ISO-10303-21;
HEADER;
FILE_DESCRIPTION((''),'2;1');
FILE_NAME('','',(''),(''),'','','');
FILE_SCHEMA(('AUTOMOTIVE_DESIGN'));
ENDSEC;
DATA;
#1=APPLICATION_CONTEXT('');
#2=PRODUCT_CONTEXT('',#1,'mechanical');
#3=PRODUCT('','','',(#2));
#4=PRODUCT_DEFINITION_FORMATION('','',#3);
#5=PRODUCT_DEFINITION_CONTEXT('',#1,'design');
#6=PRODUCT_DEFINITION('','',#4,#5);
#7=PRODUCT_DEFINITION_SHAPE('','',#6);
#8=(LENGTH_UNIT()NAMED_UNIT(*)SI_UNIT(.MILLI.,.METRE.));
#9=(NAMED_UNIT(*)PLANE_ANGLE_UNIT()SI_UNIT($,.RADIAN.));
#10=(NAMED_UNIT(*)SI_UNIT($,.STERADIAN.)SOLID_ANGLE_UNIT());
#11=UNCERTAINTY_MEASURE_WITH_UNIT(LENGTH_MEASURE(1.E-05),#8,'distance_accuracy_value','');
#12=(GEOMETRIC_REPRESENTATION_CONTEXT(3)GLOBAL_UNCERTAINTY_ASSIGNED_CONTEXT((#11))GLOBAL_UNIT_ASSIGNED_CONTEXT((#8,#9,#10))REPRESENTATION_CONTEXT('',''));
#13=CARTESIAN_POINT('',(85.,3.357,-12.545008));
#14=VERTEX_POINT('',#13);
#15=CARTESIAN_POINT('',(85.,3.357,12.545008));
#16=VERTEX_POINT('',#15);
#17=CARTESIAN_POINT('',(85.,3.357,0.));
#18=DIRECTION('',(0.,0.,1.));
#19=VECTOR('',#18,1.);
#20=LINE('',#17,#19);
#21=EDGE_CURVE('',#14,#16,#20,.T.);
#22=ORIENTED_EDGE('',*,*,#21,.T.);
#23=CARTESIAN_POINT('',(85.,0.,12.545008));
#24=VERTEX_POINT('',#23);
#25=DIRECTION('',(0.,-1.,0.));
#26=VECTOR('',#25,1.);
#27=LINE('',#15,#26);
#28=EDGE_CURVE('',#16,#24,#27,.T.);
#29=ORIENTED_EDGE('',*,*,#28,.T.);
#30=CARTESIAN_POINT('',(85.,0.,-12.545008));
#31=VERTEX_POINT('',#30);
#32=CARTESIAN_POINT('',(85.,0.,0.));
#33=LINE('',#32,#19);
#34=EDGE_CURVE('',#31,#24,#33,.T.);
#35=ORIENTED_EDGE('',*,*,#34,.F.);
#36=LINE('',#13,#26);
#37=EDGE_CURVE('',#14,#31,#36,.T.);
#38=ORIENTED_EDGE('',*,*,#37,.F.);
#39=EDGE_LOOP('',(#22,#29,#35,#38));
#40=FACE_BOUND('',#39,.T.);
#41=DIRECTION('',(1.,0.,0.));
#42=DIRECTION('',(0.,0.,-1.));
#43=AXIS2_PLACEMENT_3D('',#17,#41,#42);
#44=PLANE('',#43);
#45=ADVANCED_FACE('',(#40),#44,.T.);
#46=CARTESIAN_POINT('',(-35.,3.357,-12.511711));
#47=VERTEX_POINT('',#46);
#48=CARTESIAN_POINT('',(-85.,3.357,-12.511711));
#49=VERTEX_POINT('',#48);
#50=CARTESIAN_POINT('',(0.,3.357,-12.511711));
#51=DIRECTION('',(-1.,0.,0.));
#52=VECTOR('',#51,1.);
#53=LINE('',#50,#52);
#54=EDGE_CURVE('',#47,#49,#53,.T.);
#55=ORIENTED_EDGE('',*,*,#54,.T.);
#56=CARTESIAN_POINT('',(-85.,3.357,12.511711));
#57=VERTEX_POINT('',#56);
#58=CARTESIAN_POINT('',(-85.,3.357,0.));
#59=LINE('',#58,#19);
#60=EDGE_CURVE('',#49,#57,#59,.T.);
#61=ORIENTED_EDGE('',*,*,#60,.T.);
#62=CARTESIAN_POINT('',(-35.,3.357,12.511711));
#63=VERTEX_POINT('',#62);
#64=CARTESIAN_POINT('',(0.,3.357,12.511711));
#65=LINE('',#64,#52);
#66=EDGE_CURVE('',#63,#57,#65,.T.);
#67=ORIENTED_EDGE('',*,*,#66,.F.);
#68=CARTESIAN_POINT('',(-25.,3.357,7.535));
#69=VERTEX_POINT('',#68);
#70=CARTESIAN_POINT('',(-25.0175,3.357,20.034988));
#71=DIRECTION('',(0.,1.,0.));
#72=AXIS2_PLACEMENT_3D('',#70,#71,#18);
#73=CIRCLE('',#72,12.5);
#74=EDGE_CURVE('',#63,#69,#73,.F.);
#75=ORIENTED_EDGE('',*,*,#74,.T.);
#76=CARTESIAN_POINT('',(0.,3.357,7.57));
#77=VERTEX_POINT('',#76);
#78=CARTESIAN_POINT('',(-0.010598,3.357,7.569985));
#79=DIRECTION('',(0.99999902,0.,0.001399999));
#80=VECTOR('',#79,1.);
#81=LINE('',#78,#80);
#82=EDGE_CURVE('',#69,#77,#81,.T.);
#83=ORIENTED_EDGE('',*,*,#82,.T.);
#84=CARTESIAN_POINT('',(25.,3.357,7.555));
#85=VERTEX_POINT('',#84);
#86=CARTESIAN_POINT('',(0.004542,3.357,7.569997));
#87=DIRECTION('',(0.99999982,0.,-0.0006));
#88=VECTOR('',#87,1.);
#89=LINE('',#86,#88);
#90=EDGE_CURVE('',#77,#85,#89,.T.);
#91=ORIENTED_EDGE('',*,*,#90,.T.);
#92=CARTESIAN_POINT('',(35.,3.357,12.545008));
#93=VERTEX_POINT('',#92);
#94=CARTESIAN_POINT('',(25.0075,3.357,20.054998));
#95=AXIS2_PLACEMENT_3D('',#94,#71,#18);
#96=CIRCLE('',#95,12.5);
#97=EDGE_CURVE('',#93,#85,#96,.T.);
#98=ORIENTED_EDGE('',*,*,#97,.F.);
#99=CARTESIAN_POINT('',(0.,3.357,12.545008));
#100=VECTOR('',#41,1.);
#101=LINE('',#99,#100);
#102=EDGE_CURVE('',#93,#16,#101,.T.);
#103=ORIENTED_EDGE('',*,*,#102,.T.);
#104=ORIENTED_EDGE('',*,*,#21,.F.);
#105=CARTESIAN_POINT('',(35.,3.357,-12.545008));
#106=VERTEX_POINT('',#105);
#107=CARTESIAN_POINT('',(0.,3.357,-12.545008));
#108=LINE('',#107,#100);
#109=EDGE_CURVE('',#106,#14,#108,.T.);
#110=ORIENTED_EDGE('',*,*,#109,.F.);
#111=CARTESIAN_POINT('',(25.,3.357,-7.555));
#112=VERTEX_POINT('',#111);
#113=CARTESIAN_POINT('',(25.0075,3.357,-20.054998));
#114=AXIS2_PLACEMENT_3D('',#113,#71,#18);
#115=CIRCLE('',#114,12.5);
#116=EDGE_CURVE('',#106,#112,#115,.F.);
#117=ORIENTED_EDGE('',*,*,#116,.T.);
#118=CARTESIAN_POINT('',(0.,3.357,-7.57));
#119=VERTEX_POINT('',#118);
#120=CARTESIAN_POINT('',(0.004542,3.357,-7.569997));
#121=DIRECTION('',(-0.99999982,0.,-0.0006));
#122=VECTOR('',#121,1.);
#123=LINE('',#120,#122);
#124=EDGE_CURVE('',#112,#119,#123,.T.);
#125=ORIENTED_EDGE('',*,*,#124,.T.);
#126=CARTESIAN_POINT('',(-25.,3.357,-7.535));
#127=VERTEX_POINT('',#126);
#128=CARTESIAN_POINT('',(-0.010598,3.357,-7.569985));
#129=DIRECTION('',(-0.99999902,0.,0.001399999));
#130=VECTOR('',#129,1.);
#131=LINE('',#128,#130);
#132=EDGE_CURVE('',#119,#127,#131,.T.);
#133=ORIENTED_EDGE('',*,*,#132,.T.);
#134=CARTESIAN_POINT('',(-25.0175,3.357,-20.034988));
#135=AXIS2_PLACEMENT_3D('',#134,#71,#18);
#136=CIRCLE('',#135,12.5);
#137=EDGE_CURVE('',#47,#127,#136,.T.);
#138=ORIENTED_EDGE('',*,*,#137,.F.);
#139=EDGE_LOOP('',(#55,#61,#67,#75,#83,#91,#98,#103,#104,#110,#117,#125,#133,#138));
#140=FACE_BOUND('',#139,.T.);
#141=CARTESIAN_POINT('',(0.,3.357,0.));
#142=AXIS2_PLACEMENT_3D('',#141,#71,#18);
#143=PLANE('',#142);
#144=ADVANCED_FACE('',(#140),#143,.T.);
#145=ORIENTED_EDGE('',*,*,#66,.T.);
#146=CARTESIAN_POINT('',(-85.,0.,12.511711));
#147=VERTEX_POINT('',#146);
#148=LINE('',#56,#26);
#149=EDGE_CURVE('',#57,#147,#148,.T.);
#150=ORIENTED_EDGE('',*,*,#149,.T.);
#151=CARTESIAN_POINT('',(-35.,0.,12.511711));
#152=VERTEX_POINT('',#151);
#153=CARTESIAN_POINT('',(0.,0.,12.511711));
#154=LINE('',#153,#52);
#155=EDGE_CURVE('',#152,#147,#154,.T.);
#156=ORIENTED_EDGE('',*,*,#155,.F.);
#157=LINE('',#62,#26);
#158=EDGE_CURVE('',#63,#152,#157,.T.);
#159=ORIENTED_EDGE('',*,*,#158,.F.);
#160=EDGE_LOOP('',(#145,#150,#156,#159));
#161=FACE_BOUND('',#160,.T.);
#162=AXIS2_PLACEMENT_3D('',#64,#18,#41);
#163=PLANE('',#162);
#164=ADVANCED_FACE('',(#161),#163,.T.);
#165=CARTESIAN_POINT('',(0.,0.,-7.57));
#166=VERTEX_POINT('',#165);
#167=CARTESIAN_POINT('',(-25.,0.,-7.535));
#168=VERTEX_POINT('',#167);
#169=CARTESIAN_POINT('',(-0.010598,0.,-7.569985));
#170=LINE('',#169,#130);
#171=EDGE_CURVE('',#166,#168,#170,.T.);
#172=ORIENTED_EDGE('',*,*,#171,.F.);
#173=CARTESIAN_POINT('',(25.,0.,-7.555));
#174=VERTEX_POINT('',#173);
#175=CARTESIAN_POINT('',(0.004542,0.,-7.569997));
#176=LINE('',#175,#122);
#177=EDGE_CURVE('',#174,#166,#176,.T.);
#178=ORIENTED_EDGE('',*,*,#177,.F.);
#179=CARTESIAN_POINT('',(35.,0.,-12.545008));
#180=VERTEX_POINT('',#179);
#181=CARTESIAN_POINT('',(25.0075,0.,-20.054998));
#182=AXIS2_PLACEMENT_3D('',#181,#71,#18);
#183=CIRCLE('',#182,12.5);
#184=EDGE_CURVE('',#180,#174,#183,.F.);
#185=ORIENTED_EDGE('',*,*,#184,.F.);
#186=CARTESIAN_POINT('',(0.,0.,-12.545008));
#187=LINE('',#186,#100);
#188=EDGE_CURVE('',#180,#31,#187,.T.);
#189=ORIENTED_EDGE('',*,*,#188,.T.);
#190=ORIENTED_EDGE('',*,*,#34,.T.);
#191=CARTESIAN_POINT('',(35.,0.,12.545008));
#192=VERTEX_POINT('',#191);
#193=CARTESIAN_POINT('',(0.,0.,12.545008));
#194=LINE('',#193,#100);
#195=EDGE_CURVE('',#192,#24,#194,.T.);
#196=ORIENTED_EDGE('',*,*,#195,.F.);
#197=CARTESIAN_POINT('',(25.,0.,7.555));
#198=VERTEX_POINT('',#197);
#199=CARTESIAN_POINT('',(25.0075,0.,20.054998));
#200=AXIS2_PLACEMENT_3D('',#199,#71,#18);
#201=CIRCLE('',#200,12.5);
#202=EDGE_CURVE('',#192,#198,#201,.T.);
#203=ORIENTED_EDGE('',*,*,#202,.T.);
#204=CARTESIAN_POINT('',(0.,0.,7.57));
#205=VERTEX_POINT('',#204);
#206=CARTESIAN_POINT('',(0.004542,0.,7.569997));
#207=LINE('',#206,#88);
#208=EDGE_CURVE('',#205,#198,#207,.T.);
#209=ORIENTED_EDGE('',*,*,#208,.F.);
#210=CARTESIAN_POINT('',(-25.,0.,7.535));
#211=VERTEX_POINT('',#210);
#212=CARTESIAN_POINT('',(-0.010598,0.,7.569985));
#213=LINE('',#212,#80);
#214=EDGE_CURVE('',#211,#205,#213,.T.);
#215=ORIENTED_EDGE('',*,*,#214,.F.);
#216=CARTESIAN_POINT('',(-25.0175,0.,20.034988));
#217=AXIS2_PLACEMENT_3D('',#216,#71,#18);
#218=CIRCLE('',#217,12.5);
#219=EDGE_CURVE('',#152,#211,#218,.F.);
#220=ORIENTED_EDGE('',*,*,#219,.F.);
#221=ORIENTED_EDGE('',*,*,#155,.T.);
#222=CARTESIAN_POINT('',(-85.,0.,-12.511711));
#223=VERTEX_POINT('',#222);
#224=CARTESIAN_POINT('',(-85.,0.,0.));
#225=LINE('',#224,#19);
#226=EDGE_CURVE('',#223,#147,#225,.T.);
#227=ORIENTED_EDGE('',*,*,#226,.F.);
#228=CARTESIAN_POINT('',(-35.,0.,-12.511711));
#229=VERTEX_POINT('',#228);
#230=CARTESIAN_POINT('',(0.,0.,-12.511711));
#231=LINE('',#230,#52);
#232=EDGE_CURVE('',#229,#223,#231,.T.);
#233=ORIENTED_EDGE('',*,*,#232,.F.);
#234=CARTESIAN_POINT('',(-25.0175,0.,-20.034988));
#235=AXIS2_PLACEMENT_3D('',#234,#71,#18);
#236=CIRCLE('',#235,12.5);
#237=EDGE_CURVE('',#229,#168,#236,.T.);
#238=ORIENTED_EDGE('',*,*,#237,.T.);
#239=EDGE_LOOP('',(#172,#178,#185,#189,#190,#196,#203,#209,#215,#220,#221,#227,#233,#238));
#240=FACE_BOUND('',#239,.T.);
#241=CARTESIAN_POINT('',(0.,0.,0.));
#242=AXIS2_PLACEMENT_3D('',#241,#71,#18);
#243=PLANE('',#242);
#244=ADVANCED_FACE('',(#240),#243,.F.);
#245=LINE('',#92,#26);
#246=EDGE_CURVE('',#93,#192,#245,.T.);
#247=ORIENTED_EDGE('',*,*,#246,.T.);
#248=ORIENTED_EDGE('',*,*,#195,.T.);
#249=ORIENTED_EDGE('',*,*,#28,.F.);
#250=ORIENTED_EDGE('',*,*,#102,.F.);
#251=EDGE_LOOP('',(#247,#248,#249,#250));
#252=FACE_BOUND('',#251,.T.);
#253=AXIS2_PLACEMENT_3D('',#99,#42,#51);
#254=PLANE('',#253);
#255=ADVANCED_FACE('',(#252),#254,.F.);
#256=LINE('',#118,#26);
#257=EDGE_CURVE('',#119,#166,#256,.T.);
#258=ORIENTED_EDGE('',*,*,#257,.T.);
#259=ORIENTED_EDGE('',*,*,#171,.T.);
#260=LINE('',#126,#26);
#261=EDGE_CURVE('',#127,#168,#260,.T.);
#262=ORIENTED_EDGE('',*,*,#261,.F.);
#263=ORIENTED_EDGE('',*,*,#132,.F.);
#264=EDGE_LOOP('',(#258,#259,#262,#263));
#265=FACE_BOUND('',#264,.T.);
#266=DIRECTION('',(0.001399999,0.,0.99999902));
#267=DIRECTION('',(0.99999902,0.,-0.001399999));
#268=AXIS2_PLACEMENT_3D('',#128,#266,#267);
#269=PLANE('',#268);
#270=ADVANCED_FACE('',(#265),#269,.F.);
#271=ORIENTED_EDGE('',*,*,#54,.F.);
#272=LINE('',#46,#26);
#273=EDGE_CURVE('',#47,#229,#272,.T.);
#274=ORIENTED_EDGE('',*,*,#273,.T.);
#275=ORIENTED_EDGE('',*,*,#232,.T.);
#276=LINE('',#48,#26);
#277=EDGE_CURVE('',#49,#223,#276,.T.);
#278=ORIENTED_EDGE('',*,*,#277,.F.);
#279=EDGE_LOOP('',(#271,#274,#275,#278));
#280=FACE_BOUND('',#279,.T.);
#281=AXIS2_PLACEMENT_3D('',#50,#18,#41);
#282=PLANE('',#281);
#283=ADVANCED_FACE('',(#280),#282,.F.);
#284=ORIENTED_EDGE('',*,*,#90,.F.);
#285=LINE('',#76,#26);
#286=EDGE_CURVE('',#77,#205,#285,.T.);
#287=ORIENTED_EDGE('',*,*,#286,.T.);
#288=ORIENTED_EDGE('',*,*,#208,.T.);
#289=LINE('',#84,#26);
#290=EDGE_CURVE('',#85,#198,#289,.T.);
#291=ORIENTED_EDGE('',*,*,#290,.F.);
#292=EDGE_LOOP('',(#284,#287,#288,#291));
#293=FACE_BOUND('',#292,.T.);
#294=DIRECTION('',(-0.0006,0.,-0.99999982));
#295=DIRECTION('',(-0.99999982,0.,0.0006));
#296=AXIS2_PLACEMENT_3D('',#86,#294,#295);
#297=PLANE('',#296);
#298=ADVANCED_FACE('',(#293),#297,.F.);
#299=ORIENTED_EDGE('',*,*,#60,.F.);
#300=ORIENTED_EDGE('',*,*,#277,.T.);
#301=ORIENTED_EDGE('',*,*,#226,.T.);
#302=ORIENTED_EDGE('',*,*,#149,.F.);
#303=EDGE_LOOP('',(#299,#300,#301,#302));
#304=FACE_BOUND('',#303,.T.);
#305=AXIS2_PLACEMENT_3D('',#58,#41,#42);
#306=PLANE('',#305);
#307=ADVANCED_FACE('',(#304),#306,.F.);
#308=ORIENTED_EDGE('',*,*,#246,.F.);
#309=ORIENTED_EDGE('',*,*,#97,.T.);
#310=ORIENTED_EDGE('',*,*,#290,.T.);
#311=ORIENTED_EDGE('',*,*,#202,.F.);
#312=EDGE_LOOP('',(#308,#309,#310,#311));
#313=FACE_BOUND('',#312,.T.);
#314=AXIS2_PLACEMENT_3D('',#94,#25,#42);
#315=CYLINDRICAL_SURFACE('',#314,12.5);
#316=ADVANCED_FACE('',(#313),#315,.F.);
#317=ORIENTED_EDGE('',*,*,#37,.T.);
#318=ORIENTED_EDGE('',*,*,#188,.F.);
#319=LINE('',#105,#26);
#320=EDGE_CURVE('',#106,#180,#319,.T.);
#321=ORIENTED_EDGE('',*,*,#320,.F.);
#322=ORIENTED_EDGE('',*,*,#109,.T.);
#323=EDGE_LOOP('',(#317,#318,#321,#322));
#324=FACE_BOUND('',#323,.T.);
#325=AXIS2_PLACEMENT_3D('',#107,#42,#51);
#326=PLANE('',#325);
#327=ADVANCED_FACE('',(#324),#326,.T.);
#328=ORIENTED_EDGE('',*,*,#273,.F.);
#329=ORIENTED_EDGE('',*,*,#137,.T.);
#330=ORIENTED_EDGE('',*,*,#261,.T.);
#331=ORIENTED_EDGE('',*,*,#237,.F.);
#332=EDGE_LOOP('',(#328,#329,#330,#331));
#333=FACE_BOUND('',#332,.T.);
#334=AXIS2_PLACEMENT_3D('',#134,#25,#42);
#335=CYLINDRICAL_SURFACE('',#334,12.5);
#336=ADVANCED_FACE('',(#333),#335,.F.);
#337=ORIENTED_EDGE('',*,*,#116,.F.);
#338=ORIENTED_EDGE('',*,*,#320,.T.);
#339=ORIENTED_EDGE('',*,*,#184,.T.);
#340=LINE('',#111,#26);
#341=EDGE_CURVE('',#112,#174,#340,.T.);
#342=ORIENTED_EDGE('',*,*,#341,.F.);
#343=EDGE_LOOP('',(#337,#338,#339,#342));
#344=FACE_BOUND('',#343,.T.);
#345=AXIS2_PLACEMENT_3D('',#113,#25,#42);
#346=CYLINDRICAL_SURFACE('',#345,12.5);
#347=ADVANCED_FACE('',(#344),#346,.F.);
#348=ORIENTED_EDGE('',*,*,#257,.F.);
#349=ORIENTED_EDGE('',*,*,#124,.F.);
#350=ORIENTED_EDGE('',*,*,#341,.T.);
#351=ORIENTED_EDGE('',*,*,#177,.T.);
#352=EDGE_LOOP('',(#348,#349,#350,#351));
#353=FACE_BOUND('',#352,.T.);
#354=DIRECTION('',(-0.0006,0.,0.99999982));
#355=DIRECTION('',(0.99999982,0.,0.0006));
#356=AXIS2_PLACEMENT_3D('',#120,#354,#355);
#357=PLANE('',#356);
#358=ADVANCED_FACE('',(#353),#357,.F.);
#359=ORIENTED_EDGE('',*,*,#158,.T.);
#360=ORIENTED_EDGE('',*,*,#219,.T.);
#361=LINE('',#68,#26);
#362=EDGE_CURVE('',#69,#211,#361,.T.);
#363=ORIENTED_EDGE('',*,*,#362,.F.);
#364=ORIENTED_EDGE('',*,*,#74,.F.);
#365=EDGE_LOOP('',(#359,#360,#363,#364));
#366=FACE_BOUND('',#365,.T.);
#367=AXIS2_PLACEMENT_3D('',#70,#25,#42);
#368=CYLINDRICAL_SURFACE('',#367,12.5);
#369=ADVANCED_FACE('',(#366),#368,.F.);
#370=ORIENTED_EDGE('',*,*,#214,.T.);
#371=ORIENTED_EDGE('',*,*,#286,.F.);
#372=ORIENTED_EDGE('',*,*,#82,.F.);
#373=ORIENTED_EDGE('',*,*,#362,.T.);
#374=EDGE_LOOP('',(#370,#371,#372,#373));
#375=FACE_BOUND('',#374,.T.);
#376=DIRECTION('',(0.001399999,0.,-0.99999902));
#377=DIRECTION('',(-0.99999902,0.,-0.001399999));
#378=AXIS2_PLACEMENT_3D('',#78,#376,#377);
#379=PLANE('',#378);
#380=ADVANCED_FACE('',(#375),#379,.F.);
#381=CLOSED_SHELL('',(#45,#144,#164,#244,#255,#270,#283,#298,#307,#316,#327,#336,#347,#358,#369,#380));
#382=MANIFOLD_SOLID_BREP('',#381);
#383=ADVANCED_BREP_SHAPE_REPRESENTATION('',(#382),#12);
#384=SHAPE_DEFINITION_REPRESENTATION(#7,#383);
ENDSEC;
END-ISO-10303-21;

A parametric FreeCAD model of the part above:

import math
import FreeCAD as App
import Part
import Sketcher

doc = App.newDocument("Part")
body = doc.addObject("PartDesign::Body", "Body")

sketch1 = body.newObject("Sketcher::SketchObject", "Sketch")
sketch1.AttachmentSupport = (doc.getObject("XZ_Plane"), [""])
sketch1.MapMode = "FlatFace"
sketch1.addGeometry(Part.LineSegment(App.Vector(85, -12.545008, 0), App.Vector(35, -12.545008, 0)), False)
sketch1.addGeometry(Part.ArcOfCircle(Part.Circle(App.Vector(25.0075, -20.054998, 0), App.Vector(0, 0, 1), 12.5), math.radians(36.927155), math.radians(90.034377)), False)
sketch1.addGeometry(Part.LineSegment(App.Vector(25, -7.555, 0), App.Vector(0, -7.57, 0)), False)
sketch1.addGeometry(Part.LineSegment(App.Vector(0, -7.57, 0), App.Vector(-25, -7.535, 0)), False)
sketch1.addGeometry(Part.ArcOfCircle(Part.Circle(App.Vector(-25.0175, -20.034988, 0), App.Vector(0, 0, 1), 12.5), math.radians(89.919786), math.radians(142.99662)), False)
sketch1.addGeometry(Part.LineSegment(App.Vector(-35, -12.511711, 0), App.Vector(-85, -12.511711, 0)), False)
sketch1.addGeometry(Part.LineSegment(App.Vector(-85, -12.511711, 0), App.Vector(-85, 12.511711, 0)), False)
sketch1.addGeometry(Part.LineSegment(App.Vector(-85, 12.511711, 0), App.Vector(-35, 12.511711, 0)), False)
sketch1.addGeometry(Part.ArcOfCircle(Part.Circle(App.Vector(-25.0175, 20.034988, 0), App.Vector(0, 0, 1), 12.5), math.radians(-142.99662), math.radians(-89.919786)), False)
sketch1.addGeometry(Part.LineSegment(App.Vector(-25, 7.535, 0), App.Vector(0, 7.57, 0)), False)
sketch1.addGeometry(Part.LineSegment(App.Vector(0, 7.57, 0), App.Vector(25, 7.555, 0)), False)
sketch1.addGeometry(Part.ArcOfCircle(Part.Circle(App.Vector(25.0075, 20.054998, 0), App.Vector(0, 0, 1), 12.5), math.radians(-90.034377), math.radians(-36.927155)), False)
sketch1.addGeometry(Part.LineSegment(App.Vector(35, 12.545008, 0), App.Vector(85, 12.545008, 0)), False)
sketch1.addGeometry(Part.LineSegment(App.Vector(85, 12.545008, 0), App.Vector(85, -12.545008, 0)), False)
sketch1.addConstraint(Sketcher.Constraint("Coincident", 0, 2, 1, 1))
sketch1.addConstraint(Sketcher.Constraint("Tangent", 1, 2, 2, 1))
sketch1.addConstraint(Sketcher.Constraint("Coincident", 2, 2, 3, 1))
sketch1.addConstraint(Sketcher.Constraint("Tangent", 3, 2, 4, 1))
sketch1.addConstraint(Sketcher.Constraint("Coincident", 4, 2, 5, 1))
sketch1.addConstraint(Sketcher.Constraint("Coincident", 5, 2, 6, 1))
sketch1.addConstraint(Sketcher.Constraint("Coincident", 6, 2, 7, 1))
sketch1.addConstraint(Sketcher.Constraint("Coincident", 7, 2, 8, 1))
sketch1.addConstraint(Sketcher.Constraint("Tangent", 8, 2, 9, 1))
sketch1.addConstraint(Sketcher.Constraint("Coincident", 9, 2, 10, 1))
sketch1.addConstraint(Sketcher.Constraint("Tangent", 10, 2, 11, 1))
sketch1.addConstraint(Sketcher.Constraint("Coincident", 11, 2, 12, 1))
sketch1.addConstraint(Sketcher.Constraint("Coincident", 12, 2, 13, 1))
sketch1.addConstraint(Sketcher.Constraint("Coincident", 13, 2, 0, 1))
sketch1.addConstraint(Sketcher.Constraint("Horizontal", 0))
sketch1.addConstraint(Sketcher.Constraint("Horizontal", 5))
sketch1.addConstraint(Sketcher.Constraint("Vertical", 6))
sketch1.addConstraint(Sketcher.Constraint("Horizontal", 7))
sketch1.addConstraint(Sketcher.Constraint("Horizontal", 12))
sketch1.addConstraint(Sketcher.Constraint("Vertical", 13))
sketch1.addConstraint(Sketcher.Constraint("Equal", 1, 4))
sketch1.addConstraint(Sketcher.Constraint("Equal", 4, 8))
sketch1.addConstraint(Sketcher.Constraint("Equal", 8, 11))
sketch1.addConstraint(Sketcher.Constraint("Symmetric", 2, 2, 9, 2, -1, 1))
sketch1.addConstraint(Sketcher.Constraint("Symmetric", 4, 3, 8, 3, -1))
sketch1.addConstraint(Sketcher.Constraint("Symmetric", 1, 3, 11, 3, -1))
sketch1.addConstraint(Sketcher.Constraint("PointOnObject", 2, 2, -2))
sketch1.addConstraint(Sketcher.Constraint("Vertical", 4, 2, 7, 2))
sketch1.addConstraint(Sketcher.Constraint("Vertical", 0, 2, 11, 2))
sketch1.addConstraint(Sketcher.Constraint("Equal", 0, 5))
sketch1.addConstraint(Sketcher.Constraint("Radius", 1, 12.5))
sketch1.addConstraint(Sketcher.Constraint("DistanceX", 0, 2, 0, 1, 50.0))
sketch1.addConstraint(Sketcher.Constraint("DistanceX", -1, 1, 0, 2, 35.0))
sketch1.addConstraint(Sketcher.Constraint("DistanceX", -1, 1, 1, 2, 25.0))
sketch1.addConstraint(Sketcher.Constraint("DistanceX", 3, 2, -1, 1, 25.0))
sketch1.addConstraint(Sketcher.Constraint("DistanceX", 4, 2, -1, 1, 35.0))
sketch1.addConstraint(Sketcher.Constraint("DistanceY", 2, 2, -1, 1, 7.57))
sketch1.addConstraint(Sketcher.Constraint("DistanceY", 1, 2, 3, 2, 0.02))
sketch1.addConstraint(Sketcher.Constraint("DistanceY", 3, 2, 8, 2, 15.07))
pad1 = body.newObject("PartDesign::Pad", "Pad")
pad1.Profile = sketch1
pad1.Length = 3.357
pad1.Reversed = True

doc.recompute()
